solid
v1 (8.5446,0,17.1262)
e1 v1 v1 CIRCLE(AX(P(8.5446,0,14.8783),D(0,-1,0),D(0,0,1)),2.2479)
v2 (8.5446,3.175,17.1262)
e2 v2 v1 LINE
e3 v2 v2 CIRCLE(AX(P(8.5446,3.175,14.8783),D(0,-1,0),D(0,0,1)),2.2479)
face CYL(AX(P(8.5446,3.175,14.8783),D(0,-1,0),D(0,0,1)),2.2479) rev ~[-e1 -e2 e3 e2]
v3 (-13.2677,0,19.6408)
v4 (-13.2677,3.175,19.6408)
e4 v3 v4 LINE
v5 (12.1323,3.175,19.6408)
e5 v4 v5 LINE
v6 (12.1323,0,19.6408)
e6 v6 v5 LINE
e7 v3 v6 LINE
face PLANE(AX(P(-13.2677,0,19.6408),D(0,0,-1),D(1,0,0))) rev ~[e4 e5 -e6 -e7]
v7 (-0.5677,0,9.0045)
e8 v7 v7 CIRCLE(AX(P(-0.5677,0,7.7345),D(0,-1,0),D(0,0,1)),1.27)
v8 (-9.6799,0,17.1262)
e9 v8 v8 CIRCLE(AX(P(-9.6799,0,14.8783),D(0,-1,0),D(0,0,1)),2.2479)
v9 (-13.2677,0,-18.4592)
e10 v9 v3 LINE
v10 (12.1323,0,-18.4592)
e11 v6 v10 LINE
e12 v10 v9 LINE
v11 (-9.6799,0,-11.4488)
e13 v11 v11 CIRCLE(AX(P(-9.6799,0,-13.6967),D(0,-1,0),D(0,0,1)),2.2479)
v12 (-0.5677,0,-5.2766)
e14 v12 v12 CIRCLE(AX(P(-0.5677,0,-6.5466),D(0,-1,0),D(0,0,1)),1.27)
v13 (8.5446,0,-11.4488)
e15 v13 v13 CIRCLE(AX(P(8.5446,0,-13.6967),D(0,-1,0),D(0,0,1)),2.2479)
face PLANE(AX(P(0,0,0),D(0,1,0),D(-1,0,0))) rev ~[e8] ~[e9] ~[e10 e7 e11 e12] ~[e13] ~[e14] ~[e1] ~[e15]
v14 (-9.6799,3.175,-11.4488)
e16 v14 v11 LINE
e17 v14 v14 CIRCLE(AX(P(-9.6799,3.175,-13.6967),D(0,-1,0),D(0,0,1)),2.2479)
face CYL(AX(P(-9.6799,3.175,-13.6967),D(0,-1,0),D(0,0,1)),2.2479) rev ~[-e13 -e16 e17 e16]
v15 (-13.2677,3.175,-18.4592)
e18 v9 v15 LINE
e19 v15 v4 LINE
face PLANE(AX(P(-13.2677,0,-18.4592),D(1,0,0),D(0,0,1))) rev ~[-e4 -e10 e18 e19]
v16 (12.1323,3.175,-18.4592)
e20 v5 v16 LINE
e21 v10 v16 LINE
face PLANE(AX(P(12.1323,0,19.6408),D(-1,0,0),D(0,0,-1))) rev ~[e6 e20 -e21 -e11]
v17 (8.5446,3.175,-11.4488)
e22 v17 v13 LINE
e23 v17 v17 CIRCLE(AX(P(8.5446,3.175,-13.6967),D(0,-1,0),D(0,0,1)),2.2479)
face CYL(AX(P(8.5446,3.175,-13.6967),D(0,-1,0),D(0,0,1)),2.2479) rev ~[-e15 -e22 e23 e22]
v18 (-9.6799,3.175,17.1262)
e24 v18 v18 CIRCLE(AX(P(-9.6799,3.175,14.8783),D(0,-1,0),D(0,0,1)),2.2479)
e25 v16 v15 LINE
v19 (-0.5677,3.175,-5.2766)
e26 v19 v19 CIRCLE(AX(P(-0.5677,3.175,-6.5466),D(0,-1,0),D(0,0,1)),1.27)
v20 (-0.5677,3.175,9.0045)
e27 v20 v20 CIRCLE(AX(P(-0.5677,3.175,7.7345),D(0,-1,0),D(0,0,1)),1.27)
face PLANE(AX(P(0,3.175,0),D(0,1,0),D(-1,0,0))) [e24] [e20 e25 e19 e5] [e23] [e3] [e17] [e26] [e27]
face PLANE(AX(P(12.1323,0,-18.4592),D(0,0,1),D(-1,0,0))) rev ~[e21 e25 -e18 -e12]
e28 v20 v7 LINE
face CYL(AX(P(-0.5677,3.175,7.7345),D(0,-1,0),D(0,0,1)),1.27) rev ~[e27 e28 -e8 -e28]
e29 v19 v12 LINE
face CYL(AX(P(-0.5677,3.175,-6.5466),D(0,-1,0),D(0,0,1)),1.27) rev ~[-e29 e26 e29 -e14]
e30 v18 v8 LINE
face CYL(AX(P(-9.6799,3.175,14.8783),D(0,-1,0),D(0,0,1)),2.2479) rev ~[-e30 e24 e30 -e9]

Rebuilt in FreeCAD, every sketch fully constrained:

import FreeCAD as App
import Part
import Sketcher
from FreeCAD import Vector
Q = App.Units.Quantity

doc = App.newDocument("Part")
body = doc.addObject("PartDesign::Body", "Body")

sketch1 = doc.addObject("Sketcher::SketchObject", "Sketch")
body.addObject(sketch1)
sketch1.AttachmentSupport = (doc.XZ_Plane, [""])
sketch1.MapMode = "FlatFace"
sketch1.addGeometry([
    Part.LineSegment(Vector(-13, -18, 0), Vector(-13, 20, 0)),
    Part.LineSegment(Vector(-13, 20, 0), Vector(12, 20, 0)),
    Part.LineSegment(Vector(12, 20, 0), Vector(12, -18, 0)),
    Part.LineSegment(Vector(12, -18, 0), Vector(-13, -18, 0)),
], False)
sketch1.addConstraint([
    Sketcher.Constraint("Coincident", 0, 2, 1, 1),
    Sketcher.Constraint("Coincident", 1, 2, 2, 1),
    Sketcher.Constraint("Coincident", 2, 2, 3, 1),
    Sketcher.Constraint("Coincident", 3, 2, 0, 1),
    Sketcher.Constraint("Vertical", 0),
    Sketcher.Constraint("Horizontal", 1),
    Sketcher.Constraint("Vertical", 2),
    Sketcher.Constraint("Horizontal", 3),
    Sketcher.Constraint("DistanceX", 1, 1, 1, 2, Q("1 in")),
    Sketcher.Constraint("DistanceY", 0, 1, 0, 2, Q("1.5 in")),
    Sketcher.Constraint("DistanceX", 0, 2, -1, 1, Q("13.2677 mm")),
    Sketcher.Constraint("DistanceY", -1, 1, 0, 2, Q("19.6408 mm")),
])
pad1 = doc.addObject("PartDesign::Pad", "Pad")
body.addObject(pad1)
pad1.Profile = sketch1
pad1.Length = Q("0.125 in")
pad1.Reversed = True

sketch2 = doc.addObject("Sketcher::SketchObject", "Sketch001")
body.addObject(sketch2)
sketch2.AttachmentSupport = (doc.XZ_Plane, [""])
sketch2.MapMode = "FlatFace"
sketch2.AttachmentOffset = App.Placement(Vector(0, 0, -0.125 * 25.4), App.Rotation())
sketch2.addGeometry(Part.Circle(Vector(-9.7, 14.9, 0), Vector(0, 0, 1), 2.2), False)
sketch2.addConstraint([
    Sketcher.Constraint("Diameter", 0, Q("0.177 in")),
    Sketcher.Constraint("DistanceX", 0, 3, -1, 1, Q("0.3811 in")),
    Sketcher.Constraint("DistanceY", -1, 1, 0, 3, Q("14.8783 mm")),
])
doc.recompute()
hole = doc.addObject("PartDesign::Hole", "Hole")
body.addObject(hole)
hole.Profile = sketch2
hole.ThreadType = "None"
hole.Diameter = Q("0.177 in")
hole.DepthType = "Dimension"
hole.Depth = Q("0.125 in")
hole.DrillPoint = "Flat"
hole.Reversed = True

sketch3 = doc.addObject("Sketcher::SketchObject", "Sketch002")
body.addObject(sketch3)
sketch3.AttachmentSupport = (doc.XZ_Plane, [""])
sketch3.MapMode = "FlatFace"
sketch3.AttachmentOffset = App.Placement(Vector(0, 0, -0.125 * 25.4), App.Rotation())
sketch3.addGeometry(Part.Circle(Vector(8.5, 14.9, 0), Vector(0, 0, 1), 2.2), False)
sketch3.addConstraint([
    Sketcher.Constraint("Diameter", 0, Q("0.177 in")),
    Sketcher.Constraint("DistanceX", -1, 1, 0, 3, Q("0.3364 in")),
    Sketcher.Constraint("DistanceY", -1, 1, 0, 3, Q("14.8783 mm")),
])
doc.recompute()
hole2 = doc.addObject("PartDesign::Hole", "Hole001")
body.addObject(hole2)
hole2.Profile = sketch3
hole2.ThreadType = "None"
hole2.Diameter = Q("0.177 in")
hole2.DepthType = "Dimension"
hole2.Depth = Q("0.125 in")
hole2.DrillPoint = "Flat"
hole2.Reversed = True

sketch4 = doc.addObject("Sketcher::SketchObject", "Sketch003")
body.addObject(sketch4)
sketch4.AttachmentSupport = (doc.XZ_Plane, [""])
sketch4.MapMode = "FlatFace"
sketch4.AttachmentOffset = App.Placement(Vector(0, 0, -0.125 * 25.4), App.Rotation())
sketch4.addGeometry(Part.Circle(Vector(-9.7, -13.7, 0), Vector(0, 0, 1), 2.2), False)
sketch4.addConstraint([
    Sketcher.Constraint("Diameter", 0, Q("0.177 in")),
    Sketcher.Constraint("DistanceX", 0, 3, -1, 1, Q("0.3811 in")),
    Sketcher.Constraint("DistanceY", 0, 3, -1, 1, Q("13.6967 mm")),
])
doc.recompute()
hole3 = doc.addObject("PartDesign::Hole", "Hole002")
body.addObject(hole3)
hole3.Profile = sketch4
hole3.ThreadType = "None"
hole3.Diameter = Q("0.177 in")
hole3.DepthType = "Dimension"
hole3.Depth = Q("0.125 in")
hole3.DrillPoint = "Flat"
hole3.Reversed = True

sketch5 = doc.addObject("Sketcher::SketchObject", "Sketch004")
body.addObject(sketch5)
sketch5.AttachmentSupport = (doc.XZ_Plane, [""])
sketch5.MapMode = "FlatFace"
sketch5.AttachmentOffset = App.Placement(Vector(0, 0, -0.125 * 25.4), App.Rotation())
sketch5.addGeometry(Part.Circle(Vector(8.5, -13.7, 0), Vector(0, 0, 1), 2.2), False)
sketch5.addConstraint([
    Sketcher.Constraint("Diameter", 0, Q("0.177 in")),
    Sketcher.Constraint("DistanceX", -1, 1, 0, 3, Q("0.3364 in")),
    Sketcher.Constraint("DistanceY", 0, 3, -1, 1, Q("13.6967 mm")),
])
doc.recompute()
hole4 = doc.addObject("PartDesign::Hole", "Hole003")
body.addObject(hole4)
hole4.Profile = sketch5
hole4.ThreadType = "None"
hole4.Diameter = Q("0.177 in")
hole4.DepthType = "Dimension"
hole4.Depth = Q("0.125 in")
hole4.DrillPoint = "Flat"
hole4.Reversed = True

sketch6 = doc.addObject("Sketcher::SketchObject", "Sketch005")
body.addObject(sketch6)
sketch6.AttachmentSupport = (doc.XZ_Plane, [""])
sketch6.MapMode = "FlatFace"
sketch6.AttachmentOffset = App.Placement(Vector(0, 0, -0.125 * 25.4), App.Rotation())
sketch6.addGeometry(Part.Circle(Vector(-0.6, -6.5, 0), Vector(0, 0, 1), 1.3), False)
sketch6.addConstraint([
    Sketcher.Constraint("Diameter", 0, Q("0.1 in")),
    Sketcher.Constraint("DistanceX", 0, 3, -1, 1, Q("0.5677 mm")),
    Sketcher.Constraint("DistanceY", 0, 3, -1, 1, Q("6.5466 mm")),
])
doc.recompute()
hole5 = doc.addObject("PartDesign::Hole", "Hole004")
body.addObject(hole5)
hole5.Profile = sketch6
hole5.ThreadType = "None"
hole5.Diameter = Q("0.1 in")
hole5.DepthType = "Dimension"
hole5.Depth = Q("0.125 in")
hole5.DrillPoint = "Flat"
hole5.Reversed = True

sketch7 = doc.addObject("Sketcher::SketchObject", "Sketch006")
body.addObject(sketch7)
sketch7.AttachmentSupport = (doc.XZ_Plane, [""])
sketch7.MapMode = "FlatFace"
sketch7.AttachmentOffset = App.Placement(Vector(0, 0, -0.125 * 25.4), App.Rotation())
sketch7.addGeometry(Part.Circle(Vector(-0.6, 7.7, 0), Vector(0, 0, 1), 1.3), False)
sketch7.addConstraint([
    Sketcher.Constraint("Diameter", 0, Q("0.1 in")),
    Sketcher.Constraint("DistanceY", -1, 1, 0, 3, Q("0.3045 in")),
    Sketcher.Constraint("DistanceX", 0, 3, -1, 1, Q("0.5677 mm")),
])
doc.recompute()
hole6 = doc.addObject("PartDesign::Hole", "Hole005")
body.addObject(hole6)
hole6.Profile = sketch7
hole6.ThreadType = "None"
hole6.Diameter = Q("0.1 in")
hole6.DepthType = "Dimension"
hole6.Depth = Q("0.125 in")
hole6.DrillPoint = "Flat"
hole6.Reversed = True

doc.recompute()
